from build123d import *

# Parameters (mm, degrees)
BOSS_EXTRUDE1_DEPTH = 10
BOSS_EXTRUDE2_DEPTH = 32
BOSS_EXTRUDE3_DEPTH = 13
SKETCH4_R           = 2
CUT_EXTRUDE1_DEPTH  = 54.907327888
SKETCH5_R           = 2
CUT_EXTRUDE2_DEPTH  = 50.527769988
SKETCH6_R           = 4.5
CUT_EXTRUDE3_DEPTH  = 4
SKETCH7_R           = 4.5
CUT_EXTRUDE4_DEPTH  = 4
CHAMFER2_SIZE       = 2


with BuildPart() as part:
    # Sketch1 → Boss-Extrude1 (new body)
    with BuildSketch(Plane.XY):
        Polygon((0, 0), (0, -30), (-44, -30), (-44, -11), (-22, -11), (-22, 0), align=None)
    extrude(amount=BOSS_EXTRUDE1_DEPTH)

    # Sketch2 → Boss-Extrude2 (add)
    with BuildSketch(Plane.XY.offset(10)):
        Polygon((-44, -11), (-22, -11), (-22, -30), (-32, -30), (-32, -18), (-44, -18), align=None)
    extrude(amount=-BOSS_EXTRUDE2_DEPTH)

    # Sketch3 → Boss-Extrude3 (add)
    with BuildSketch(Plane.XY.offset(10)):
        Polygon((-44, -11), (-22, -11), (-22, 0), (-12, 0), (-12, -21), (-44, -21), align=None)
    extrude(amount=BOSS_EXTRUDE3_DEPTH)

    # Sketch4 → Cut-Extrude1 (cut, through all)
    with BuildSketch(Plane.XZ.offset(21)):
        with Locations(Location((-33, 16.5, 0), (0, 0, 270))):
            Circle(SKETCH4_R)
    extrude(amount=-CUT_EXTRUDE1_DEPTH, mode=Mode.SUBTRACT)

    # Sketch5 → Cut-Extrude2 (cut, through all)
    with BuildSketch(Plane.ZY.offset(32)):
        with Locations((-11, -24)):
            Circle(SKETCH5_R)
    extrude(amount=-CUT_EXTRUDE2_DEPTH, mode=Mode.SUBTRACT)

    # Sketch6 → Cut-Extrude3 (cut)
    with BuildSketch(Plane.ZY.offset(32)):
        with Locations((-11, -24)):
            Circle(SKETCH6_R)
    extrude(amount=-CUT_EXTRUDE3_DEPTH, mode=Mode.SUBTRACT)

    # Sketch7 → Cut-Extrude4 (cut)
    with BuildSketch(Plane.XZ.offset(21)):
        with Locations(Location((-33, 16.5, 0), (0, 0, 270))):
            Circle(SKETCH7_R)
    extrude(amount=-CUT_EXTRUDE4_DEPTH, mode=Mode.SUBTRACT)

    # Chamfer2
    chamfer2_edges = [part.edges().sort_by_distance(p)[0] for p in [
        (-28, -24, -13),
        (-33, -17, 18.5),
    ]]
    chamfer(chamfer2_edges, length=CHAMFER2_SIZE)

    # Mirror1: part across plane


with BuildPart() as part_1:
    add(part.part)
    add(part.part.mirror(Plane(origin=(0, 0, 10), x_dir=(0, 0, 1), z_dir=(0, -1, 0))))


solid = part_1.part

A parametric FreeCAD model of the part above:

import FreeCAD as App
import Part
import Sketcher

V = App.Vector


def edges_at(feature, points):
    """Names of the edges that pass closest to the given points."""
    edges = feature.Shape.Edges
    near = lambda p: min(range(len(edges)), key=lambda i: edges[i].distToShape(Part.Vertex(*p))[0])
    return sorted({f"Edge{near(p) + 1}" for p in points})

doc = App.newDocument("Part")
body = doc.addObject("PartDesign::Body", "Body")

sketch1 = doc.addObject("Sketcher::SketchObject", "Sketch")
body.addObject(sketch1)
sketch1.AttachmentSupport = (doc.XY_Plane, [""])
sketch1.MapMode = "FlatFace"
sketch1.addGeometry(Part.LineSegment(V(0, -30, 0), V(0, 0, 0)), False)
sketch1.addGeometry(Part.LineSegment(V(0, 0, 0), V(-22, 0, 0)), False)
sketch1.addGeometry(Part.LineSegment(V(-22, 0, 0), V(-22, -11, 0)), False)
sketch1.addGeometry(Part.LineSegment(V(-22, -11, 0), V(-44, -11, 0)), False)
sketch1.addGeometry(Part.LineSegment(V(-44, -11, 0), V(-44, -30, 0)), False)
sketch1.addGeometry(Part.LineSegment(V(-44, -30, 0), V(0, -30, 0)), False)
sketch1.addConstraint(Sketcher.Constraint("Coincident", 0, 2, 1, 1))
sketch1.addConstraint(Sketcher.Constraint("Coincident", 1, 2, 2, 1))
sketch1.addConstraint(Sketcher.Constraint("Coincident", 2, 2, 3, 1))
sketch1.addConstraint(Sketcher.Constraint("Coincident", 3, 2, 4, 1))
sketch1.addConstraint(Sketcher.Constraint("Coincident", 4, 2, 5, 1))
sketch1.addConstraint(Sketcher.Constraint("Coincident", 5, 2, 0, 1))
sketch1.addConstraint(Sketcher.Constraint("Vertical", 0))
sketch1.addConstraint(Sketcher.Constraint("Horizontal", 1))
sketch1.addConstraint(Sketcher.Constraint("Vertical", 2))
sketch1.addConstraint(Sketcher.Constraint("Horizontal", 3))
sketch1.addConstraint(Sketcher.Constraint("Vertical", 4))
sketch1.addConstraint(Sketcher.Constraint("Horizontal", 5))
sketch1.addConstraint(Sketcher.Constraint("Coincident", 0, 2, -1, 1))
sketch1.addConstraint(Sketcher.Constraint("Equal", 1, 3))
sketch1.addConstraint(Sketcher.Constraint("DistanceX", 1, 2, 1, 1, 22.0))
sketch1.addConstraint(Sketcher.Constraint("DistanceY", 0, 1, 0, 2, 30.0))
sketch1.addConstraint(Sketcher.Constraint("DistanceY", 2, 2, 2, 1, 11.0))
pad1 = doc.addObject("PartDesign::Pad", "Pad")
body.addObject(pad1)
pad1.Profile = sketch1
pad1.Length = 10

sketch2 = doc.addObject("Sketcher::SketchObject", "Sketch001")
body.addObject(sketch2)
sketch2.AttachmentSupport = (doc.XY_Plane, [""])
sketch2.MapMode = "FlatFace"
sketch2.AttachmentOffset = App.Placement(V(0, 0, 10), App.Rotation())
sketch2.addGeometry(Part.LineSegment(V(-22, -11, 0), V(-44, -11, 0)), False)
sketch2.addGeometry(Part.LineSegment(V(-44, -11, 0), V(-44, -18, 0)), False)
sketch2.addGeometry(Part.LineSegment(V(-44, -18, 0), V(-32, -18, 0)), False)
sketch2.addGeometry(Part.LineSegment(V(-32, -18, 0), V(-32, -30, 0)), False)
sketch2.addGeometry(Part.LineSegment(V(-32, -30, 0), V(-22, -30, 0)), False)
sketch2.addGeometry(Part.LineSegment(V(-22, -30, 0), V(-22, -11, 0)), False)
sketch2.addConstraint(Sketcher.Constraint("Coincident", 0, 2, 1, 1))
sketch2.addConstraint(Sketcher.Constraint("Coincident", 1, 2, 2, 1))
sketch2.addConstraint(Sketcher.Constraint("Coincident", 2, 2, 3, 1))
sketch2.addConstraint(Sketcher.Constraint("Coincident", 3, 2, 4, 1))
sketch2.addConstraint(Sketcher.Constraint("Coincident", 4, 2, 5, 1))
sketch2.addConstraint(Sketcher.Constraint("Coincident", 5, 2, 0, 1))
sketch2.addConstraint(Sketcher.Constraint("Horizontal", 0))
sketch2.addConstraint(Sketcher.Constraint("Vertical", 1))
sketch2.addConstraint(Sketcher.Constraint("Horizontal", 2))
sketch2.addConstraint(Sketcher.Constraint("Vertical", 3))
sketch2.addConstraint(Sketcher.Constraint("Horizontal", 4))
sketch2.addConstraint(Sketcher.Constraint("Vertical", 5))
sketch2.addConstraint(Sketcher.Constraint("Equal", 2, 3))
sketch2.addConstraint(Sketcher.Constraint("DistanceX", 0, 2, 0, 1, 22.0))
sketch2.addConstraint(Sketcher.Constraint("DistanceX", 2, 1, 2, 2, 12.0))
sketch2.addConstraint(Sketcher.Constraint("DistanceY", 1, 2, 1, 1, 7.0))
sketch2.addConstraint(Sketcher.Constraint("DistanceX", 0, 2, -1, 1, 44.0))
sketch2.addConstraint(Sketcher.Constraint("DistanceY", 0, 2, -1, 1, 11.0))
pad2 = doc.addObject("PartDesign::Pad", "Pad001")
body.addObject(pad2)
pad2.Profile = sketch2
pad2.Length = 32
pad2.Reversed = True

sketch3 = doc.addObject("Sketcher::SketchObject", "Sketch002")
body.addObject(sketch3)
sketch3.AttachmentSupport = (doc.XY_Plane, [""])
sketch3.MapMode = "FlatFace"
sketch3.AttachmentOffset = App.Placement(V(0, 0, 10), App.Rotation())
sketch3.addGeometry(Part.LineSegment(V(-22, -11, 0), V(-44, -11, 0)), False)
sketch3.addGeometry(Part.LineSegment(V(-44, -11, 0), V(-44, -21, 0)), False)
sketch3.addGeometry(Part.LineSegment(V(-44, -21, 0), V(-12, -21, 0)), False)
sketch3.addGeometry(Part.LineSegment(V(-12, -21, 0), V(-12, 0, 0)), False)
sketch3.addGeometry(Part.LineSegment(V(-12, 0, 0), V(-22, 0, 0)), False)
sketch3.addGeometry(Part.LineSegment(V(-22, 0, 0), V(-22, -11, 0)), False)
sketch3.addConstraint(Sketcher.Constraint("Coincident", 0, 2, 1, 1))
sketch3.addConstraint(Sketcher.Constraint("Coincident", 1, 2, 2, 1))
sketch3.addConstraint(Sketcher.Constraint("Coincident", 2, 2, 3, 1))
sketch3.addConstraint(Sketcher.Constraint("Coincident", 3, 2, 4, 1))
sketch3.addConstraint(Sketcher.Constraint("Coincident", 4, 2, 5, 1))
sketch3.addConstraint(Sketcher.Constraint("Coincident", 5, 2, 0, 1))
sketch3.addConstraint(Sketcher.Constraint("Horizontal", 0))
sketch3.addConstraint(Sketcher.Constraint("Vertical", 1))
sketch3.addConstraint(Sketcher.Constraint("Horizontal", 2))
sketch3.addConstraint(Sketcher.Constraint("Vertical", 3))
sketch3.addConstraint(Sketcher.Constraint("Horizontal", 4))
sketch3.addConstraint(Sketcher.Constraint("Vertical", 5))
sketch3.addConstraint(Sketcher.Constraint("PointOnObject", 3, 2, -1))
sketch3.addConstraint(Sketcher.Constraint("Equal", 4, 1))
sketch3.addConstraint(Sketcher.Constraint("DistanceX", 0, 2, 0, 1, 22.0))
sketch3.addConstraint(Sketcher.Constraint("DistanceX", 2, 1, 2, 2, 32.0))
sketch3.addConstraint(Sketcher.Constraint("DistanceY", 3, 1, 3, 2, 21.0))
sketch3.addConstraint(Sketcher.Constraint("DistanceX", 0, 2, -1, 1, 44.0))
pad3 = doc.addObject("PartDesign::Pad", "Pad002")
body.addObject(pad3)
pad3.Profile = sketch3
pad3.Length = 13

sketch4 = doc.addObject("Sketcher::SketchObject", "Sketch003")
body.addObject(sketch4)
sketch4.AttachmentSupport = (doc.XZ_Plane, [""])
sketch4.MapMode = "FlatFace"
sketch4.AttachmentOffset = App.Placement(V(0, 0, 21), App.Rotation())
sketch4.addGeometry(Part.Circle(V(-33, 16.5, 0), V(0, 0, 1), 2), False)
sketch4.addConstraint(Sketcher.Constraint("Diameter", 0, 4.0))
sketch4.addConstraint(Sketcher.Constraint("DistanceX", 0, 3, -1, 1, 33.0))
sketch4.addConstraint(Sketcher.Constraint("DistanceY", -1, 1, 0, 3, 16.5))
pocket1 = doc.addObject("PartDesign::Pocket", "Pocket")
body.addObject(pocket1)
pocket1.Profile = sketch4
pocket1.Type = "ThroughAll"

sketch5 = doc.addObject("Sketcher::SketchObject", "Sketch004")
body.addObject(sketch5)
sketch5.AttachmentSupport = (doc.YZ_Plane, [""])
sketch5.MapMode = "FlatFace"
sketch5.AttachmentOffset = App.Placement(V(0, 0, -32), App.Rotation())
sketch5.addGeometry(Part.Circle(V(-24, -11, 0), V(0, 0, 1), 2), False)
sketch5.addConstraint(Sketcher.Constraint("Diameter", 0, 4.0))
sketch5.addConstraint(Sketcher.Constraint("DistanceX", 0, 3, -1, 1, 24.0))
sketch5.addConstraint(Sketcher.Constraint("DistanceY", 0, 3, -1, 1, 11.0))
pocket2 = doc.addObject("PartDesign::Pocket", "Pocket001")
body.addObject(pocket2)
pocket2.Profile = sketch5
pocket2.Type = "ThroughAll"
pocket2.Reversed = True

sketch6 = doc.addObject("Sketcher::SketchObject", "Sketch005")
body.addObject(sketch6)
sketch6.AttachmentSupport = (doc.YZ_Plane, [""])
sketch6.MapMode = "FlatFace"
sketch6.AttachmentOffset = App.Placement(V(0, 0, -32), App.Rotation())
sketch6.addGeometry(Part.Circle(V(-24, -11, 0), V(0, 0, 1), 4.5), False)
sketch6.addConstraint(Sketcher.Constraint("Diameter", 0, 9.0))
sketch6.addConstraint(Sketcher.Constraint("DistanceX", 0, 3, -1, 1, 24.0))
sketch6.addConstraint(Sketcher.Constraint("DistanceY", 0, 3, -1, 1, 11.0))
pocket3 = doc.addObject("PartDesign::Pocket", "Pocket002")
body.addObject(pocket3)
pocket3.Profile = sketch6
pocket3.Length = 4
pocket3.Reversed = True

sketch7 = doc.addObject("Sketcher::SketchObject", "Sketch006")
body.addObject(sketch7)
sketch7.AttachmentSupport = (doc.XZ_Plane, [""])
sketch7.MapMode = "FlatFace"
sketch7.AttachmentOffset = App.Placement(V(0, 0, 21), App.Rotation())
sketch7.addGeometry(Part.Circle(V(-33, 16.5, 0), V(0, 0, 1), 4.5), False)
sketch7.addConstraint(Sketcher.Constraint("Diameter", 0, 9.0))
sketch7.addConstraint(Sketcher.Constraint("DistanceX", 0, 3, -1, 1, 33.0))
sketch7.addConstraint(Sketcher.Constraint("DistanceY", -1, 1, 0, 3, 16.5))
pocket4 = doc.addObject("PartDesign::Pocket", "Pocket003")
body.addObject(pocket4)
pocket4.Profile = sketch7
pocket4.Length = 4
doc.recompute()

chamfer = doc.addObject("PartDesign::Chamfer", "Chamfer")
body.addObject(chamfer)
chamfer.Base = (pocket4, edges_at(pocket4, [(-28, -24, -13), (-33, -17, 18.5)]))
chamfer.Size = 2
body2 = doc.addObject("PartDesign::Body", "Body001")
doc.recompute()

body2.BaseFeature = body
doc.recompute()

mirroring = doc.addObject("Part::Mirroring", "Mirroring")
mirroring.Source = body
mirroring.Base = V(0, 0, 10)
mirroring.Normal = V(0, -1, 0)
body3 = doc.addObject("PartDesign::Body", "Body002")
body3.BaseFeature = mirroring
boolean = doc.addObject("PartDesign::Boolean", "Boolean")
body2.addObject(boolean)
boolean.Type = "Fuse"
boolean.addObjects([body3])
doc.recompute()
mirroring.Visibility = False

doc.recompute()
